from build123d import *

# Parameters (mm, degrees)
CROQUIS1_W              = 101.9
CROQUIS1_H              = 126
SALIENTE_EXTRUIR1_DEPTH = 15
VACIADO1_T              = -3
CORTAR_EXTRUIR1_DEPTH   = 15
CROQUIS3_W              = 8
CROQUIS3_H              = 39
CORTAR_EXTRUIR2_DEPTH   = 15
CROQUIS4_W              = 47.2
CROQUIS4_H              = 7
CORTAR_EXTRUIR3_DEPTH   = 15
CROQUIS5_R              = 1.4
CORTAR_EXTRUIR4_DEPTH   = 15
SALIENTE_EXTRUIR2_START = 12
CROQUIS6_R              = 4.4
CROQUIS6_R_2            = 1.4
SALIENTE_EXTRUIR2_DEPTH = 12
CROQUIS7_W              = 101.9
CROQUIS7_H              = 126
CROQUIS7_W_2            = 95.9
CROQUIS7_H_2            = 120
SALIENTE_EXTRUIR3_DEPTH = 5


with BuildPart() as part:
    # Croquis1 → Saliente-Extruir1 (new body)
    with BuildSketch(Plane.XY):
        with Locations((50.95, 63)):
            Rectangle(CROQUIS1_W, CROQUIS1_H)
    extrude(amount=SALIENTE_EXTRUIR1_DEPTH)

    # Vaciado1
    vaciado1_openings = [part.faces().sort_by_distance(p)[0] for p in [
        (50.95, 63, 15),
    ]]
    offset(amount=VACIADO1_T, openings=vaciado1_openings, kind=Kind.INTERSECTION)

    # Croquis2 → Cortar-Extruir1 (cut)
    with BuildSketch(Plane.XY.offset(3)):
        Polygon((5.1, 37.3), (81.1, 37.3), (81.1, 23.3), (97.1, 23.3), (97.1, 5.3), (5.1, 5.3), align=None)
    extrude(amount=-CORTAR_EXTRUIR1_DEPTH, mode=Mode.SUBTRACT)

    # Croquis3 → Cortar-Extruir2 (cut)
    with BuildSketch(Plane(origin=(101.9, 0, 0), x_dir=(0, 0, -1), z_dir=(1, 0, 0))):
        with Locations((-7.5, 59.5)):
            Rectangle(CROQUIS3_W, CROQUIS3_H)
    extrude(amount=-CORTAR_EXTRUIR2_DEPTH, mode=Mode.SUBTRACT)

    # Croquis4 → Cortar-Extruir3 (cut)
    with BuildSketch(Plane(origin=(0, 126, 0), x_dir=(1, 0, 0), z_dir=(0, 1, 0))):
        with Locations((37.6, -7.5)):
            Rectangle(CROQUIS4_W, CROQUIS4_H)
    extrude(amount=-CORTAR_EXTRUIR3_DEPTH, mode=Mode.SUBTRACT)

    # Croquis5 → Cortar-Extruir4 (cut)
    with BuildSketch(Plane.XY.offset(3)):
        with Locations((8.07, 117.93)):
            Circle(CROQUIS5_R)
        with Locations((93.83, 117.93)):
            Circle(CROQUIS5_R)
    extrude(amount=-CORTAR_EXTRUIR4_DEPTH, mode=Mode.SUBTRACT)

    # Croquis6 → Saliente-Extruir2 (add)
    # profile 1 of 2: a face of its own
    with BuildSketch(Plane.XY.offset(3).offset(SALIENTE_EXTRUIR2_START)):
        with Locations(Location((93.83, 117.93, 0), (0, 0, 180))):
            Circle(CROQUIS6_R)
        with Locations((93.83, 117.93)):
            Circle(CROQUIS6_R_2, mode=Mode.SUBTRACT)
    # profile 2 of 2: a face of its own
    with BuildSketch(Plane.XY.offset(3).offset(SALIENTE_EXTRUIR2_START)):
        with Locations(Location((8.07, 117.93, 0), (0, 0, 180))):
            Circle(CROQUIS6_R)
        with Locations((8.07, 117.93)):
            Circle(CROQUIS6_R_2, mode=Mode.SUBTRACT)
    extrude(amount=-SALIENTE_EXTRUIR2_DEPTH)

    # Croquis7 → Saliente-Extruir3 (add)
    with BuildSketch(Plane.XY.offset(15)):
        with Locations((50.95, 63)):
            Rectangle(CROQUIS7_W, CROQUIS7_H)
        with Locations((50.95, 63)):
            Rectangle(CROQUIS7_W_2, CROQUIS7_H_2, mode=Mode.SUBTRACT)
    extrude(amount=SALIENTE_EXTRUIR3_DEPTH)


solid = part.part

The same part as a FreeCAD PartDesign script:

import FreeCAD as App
import Part
import Sketcher
from FreeCAD import Vector
Q = App.Units.Quantity


def faces_at(feature, points):
    """Names of the faces that lie closest to the given points."""
    faces = feature.Shape.Faces
    near = lambda p: min(range(len(faces)), key=lambda i: faces[i].distToShape(Part.Vertex(*p))[0])
    return sorted({f"Face{near(p) + 1}" for p in points})


def add_polygon(sketch, points):
    """Adds a closed chain of lines whose ends are joined by coincident constraints."""
    first, n = sketch.GeometryCount, len(points)
    for a, b in zip(points, points[1:] + points[:1]):
        sketch.addGeometry(Part.LineSegment(App.Vector(*a, 0), App.Vector(*b, 0)), False)
    for i in range(n):
        sketch.addConstraint(Sketcher.Constraint("Coincident", first + i, 2, first + (i + 1) % n, 1))

doc = App.newDocument("Part")
body = doc.addObject("PartDesign::Body", "Body")

# Sketch on XY plane
sketch1 = body.newObject("Sketcher::SketchObject", "Sketch")
sketch1.AttachmentSupport = (doc.getObject("XY_Plane"), [""])
sketch1.MapMode = "FlatFace"
add_polygon(sketch1, [(0, 126), (0, 0), (102, 0), (102, 126)])  # lines 0-3
sketch1.addConstraint(Sketcher.Constraint("Vertical", 0))
sketch1.addConstraint(Sketcher.Constraint("Horizontal", 1))
sketch1.addConstraint(Sketcher.Constraint("Vertical", 2))
sketch1.addConstraint(Sketcher.Constraint("Horizontal", 3))
sketch1.addConstraint(Sketcher.Constraint("Coincident", 0, 2, -1, 1))
sketch1.addConstraint(Sketcher.Constraint("DistanceY", 0, 2, 0, 1, Q("126 mm")))
sketch1.addConstraint(Sketcher.Constraint("DistanceX", 1, 1, 1, 2, Q("101.9 mm")))
pad1 = body.newObject("PartDesign::Pad", "Pad")
pad1.Profile = sketch1
pad1.Length = 15
doc.recompute()

thickness = body.newObject("PartDesign::Thickness", "Thickness")
thickness.Base = (pad1, faces_at(pad1, [(50.95, 63, 15)]))
thickness.Value = 3
thickness.Reversed = True
thickness.Join = "Intersection"

# Sketch on XY plane
sketch2 = body.newObject("Sketcher::SketchObject", "Sketch001")
sketch2.AttachmentSupport = (doc.getObject("XY_Plane"), [""])
sketch2.MapMode = "FlatFace"
sketch2.AttachmentOffset = App.Placement(Vector(0, 0, 3), App.Rotation())
add_polygon(sketch2, [(81, 37), (5, 37), (5, 5), (97, 5), (97, 23), (81, 23)])  # lines 0-5
sketch2.addConstraint(Sketcher.Constraint("Horizontal", 0))
sketch2.addConstraint(Sketcher.Constraint("Vertical", 1))
sketch2.addConstraint(Sketcher.Constraint("Horizontal", 2))
sketch2.addConstraint(Sketcher.Constraint("Vertical", 3))
sketch2.addConstraint(Sketcher.Constraint("Horizontal", 4))
sketch2.addConstraint(Sketcher.Constraint("Vertical", 5))
sketch2.addConstraint(Sketcher.Constraint("DistanceX", 0, 2, 0, 1, Q("76 mm")))
sketch2.addConstraint(Sketcher.Constraint("DistanceX", 2, 1, 2, 2, Q("92 mm")))
sketch2.addConstraint(Sketcher.Constraint("DistanceY", 1, 2, 1, 1, Q("32 mm")))
sketch2.addConstraint(Sketcher.Constraint("DistanceY", 3, 1, 3, 2, Q("18 mm")))
sketch2.addConstraint(Sketcher.Constraint("DistanceX", -1, 1, 0, 2, Q("5.1 mm")))
sketch2.addConstraint(Sketcher.Constraint("DistanceY", -1, 1, 0, 2, Q("37.3 mm")))
pocket1 = body.newObject("PartDesign::Pocket", "Pocket")
pocket1.Profile = sketch2
pocket1.Length = 15

# Sketch on YZ plane
sketch3 = body.newObject("Sketcher::SketchObject", "Sketch002")
sketch3.AttachmentSupport = (doc.getObject("YZ_Plane"), [""])
sketch3.MapMode = "FlatFace"
sketch3.AttachmentOffset = App.Placement(Vector(0, 0, 101.9), App.Rotation())
add_polygon(sketch3, [(79, 12), (40, 12), (40, 4), (79, 4)])  # lines 0-3
sketch3.addConstraint(Sketcher.Constraint("Horizontal", 0))
sketch3.addConstraint(Sketcher.Constraint("Vertical", 1))
sketch3.addConstraint(Sketcher.Constraint("Horizontal", 2))
sketch3.addConstraint(Sketcher.Constraint("Vertical", 3))
sketch3.addConstraint(Sketcher.Constraint("DistanceX", 0, 2, 0, 1, Q("39 mm")))
sketch3.addConstraint(Sketcher.Constraint("DistanceY", 1, 2, 1, 1, Q("8 mm")))
sketch3.addConstraint(Sketcher.Constraint("DistanceX", -1, 1, 0, 2, Q("40 mm")))
sketch3.addConstraint(Sketcher.Constraint("DistanceY", -1, 1, 0, 2, Q("11.5 mm")))
pocket2 = body.newObject("PartDesign::Pocket", "Pocket001")
pocket2.Profile = sketch3
pocket2.Length = 15

# Sketch on XZ plane
sketch4 = body.newObject("Sketcher::SketchObject", "Sketch003")
sketch4.AttachmentSupport = (doc.getObject("XZ_Plane"), [""])
sketch4.MapMode = "FlatFace"
sketch4.AttachmentOffset = App.Placement(Vector(0, 0, -126), App.Rotation())
add_polygon(sketch4, [(14, 4), (14, 11), (61, 11), (61, 4)])  # lines 0-3
sketch4.addConstraint(Sketcher.Constraint("Vertical", 0))
sketch4.addConstraint(Sketcher.Constraint("Horizontal", 1))
sketch4.addConstraint(Sketcher.Constraint("Vertical", 2))
sketch4.addConstraint(Sketcher.Constraint("Horizontal", 3))
sketch4.addConstraint(Sketcher.Constraint("DistanceY", 0, 1, 0, 2, Q("7 mm")))
sketch4.addConstraint(Sketcher.Constraint("DistanceX", 1, 1, 1, 2, Q("47.2 mm")))
sketch4.addConstraint(Sketcher.Constraint("DistanceX", -1, 1, 0, 2, Q("14 mm")))
sketch4.addConstraint(Sketcher.Constraint("DistanceY", -1, 1, 0, 2, Q("11 mm")))
pocket3 = body.newObject("PartDesign::Pocket", "Pocket002")
pocket3.Profile = sketch4
pocket3.Length = 15
pocket3.Reversed = True

# Sketch on XY plane
sketch5 = body.newObject("Sketcher::SketchObject", "Sketch004")
sketch5.AttachmentSupport = (doc.getObject("XY_Plane"), [""])
sketch5.MapMode = "FlatFace"
sketch5.AttachmentOffset = App.Placement(Vector(0, 0, 3), App.Rotation())
sketch5.addGeometry(Part.Circle(Vector(8.1, 117.9, 0), Vector(0, 0, 1), 1.4), False)
sketch5.addGeometry(Part.Circle(Vector(93.8, 117.9, 0), Vector(0, 0, 1), 1.4), False)
sketch5.addConstraint(Sketcher.Constraint("Equal", 0, 1))
sketch5.addConstraint(Sketcher.Constraint("Horizontal", 0, 3, 1, 3))
sketch5.addConstraint(Sketcher.Constraint("Diameter", 0, Q("2.8 mm")))
sketch5.addConstraint(Sketcher.Constraint("DistanceX", -1, 1, 0, 3, Q("8.07 mm")))
sketch5.addConstraint(Sketcher.Constraint("DistanceY", -1, 1, 0, 3, Q("117.93 mm")))
sketch5.addConstraint(Sketcher.Constraint("DistanceX", -1, 1, 1, 3, Q("93.83 mm")))
pocket4 = body.newObject("PartDesign::Pocket", "Pocket003")
pocket4.Profile = sketch5
pocket4.Length = 15

# Sketch on XY plane
sketch6 = body.newObject("Sketcher::SketchObject", "Sketch005")
sketch6.AttachmentSupport = (doc.getObject("XY_Plane"), [""])
sketch6.MapMode = "FlatFace"
sketch6.AttachmentOffset = App.Placement(Vector(0, 0, 15), App.Rotation())
sketch6.addGeometry(Part.Circle(Vector(93.8, 117.9, 0), Vector(0, 0, 1), 4.4), False)
sketch6.addGeometry(Part.Circle(Vector(93.8, 117.9, 0), Vector(0, 0, 1), 1.4), False)
sketch6.addGeometry(Part.Circle(Vector(8.1, 117.9, 0), Vector(0, 0, 1), 4.4), False)
sketch6.addGeometry(Part.Circle(Vector(8.1, 117.9, 0), Vector(0, 0, 1), 1.4), False)
sketch6.addConstraint(Sketcher.Constraint("Coincident", 1, 3, 0, 3))
sketch6.addConstraint(Sketcher.Constraint("Coincident", 3, 3, 2, 3))
sketch6.addConstraint(Sketcher.Constraint("Equal", 0, 2))
sketch6.addConstraint(Sketcher.Constraint("Equal", 1, 3))
sketch6.addConstraint(Sketcher.Constraint("Horizontal", 1, 3, 2, 3))
sketch6.addConstraint(Sketcher.Constraint("Diameter", 0, Q("8.8 mm")))
sketch6.addConstraint(Sketcher.Constraint("Diameter", 1, Q("2.8 mm")))
sketch6.addConstraint(Sketcher.Constraint("DistanceX", -1, 1, 0, 3, Q("93.83 mm")))
sketch6.addConstraint(Sketcher.Constraint("DistanceY", -1, 1, 0, 3, Q("117.93 mm")))
sketch6.addConstraint(Sketcher.Constraint("DistanceX", -1, 1, 2, 3, Q("8.07 mm")))
pad2 = body.newObject("PartDesign::Pad", "Pad001")
pad2.Profile = sketch6
pad2.Length = 12
pad2.Reversed = True

# Sketch on XY plane
sketch7 = body.newObject("Sketcher::SketchObject", "Sketch006")
sketch7.AttachmentSupport = (doc.getObject("XY_Plane"), [""])
sketch7.MapMode = "FlatFace"
sketch7.AttachmentOffset = App.Placement(Vector(0, 0, 15), App.Rotation())
add_polygon(sketch7, [(0, 126), (0, 0), (102, 0), (102, 126)])  # lines 0-3
add_polygon(sketch7, [(99, 3), (3, 3), (3, 123), (99, 123)])  # lines 4-7
sketch7.addConstraint(Sketcher.Constraint("Vertical", 0))
sketch7.addConstraint(Sketcher.Constraint("Horizontal", 1))
sketch7.addConstraint(Sketcher.Constraint("Vertical", 2))
sketch7.addConstraint(Sketcher.Constraint("Horizontal", 3))
sketch7.addConstraint(Sketcher.Constraint("Horizontal", 4))
sketch7.addConstraint(Sketcher.Constraint("Vertical", 5))
sketch7.addConstraint(Sketcher.Constraint("Horizontal", 6))
sketch7.addConstraint(Sketcher.Constraint("Vertical", 7))
sketch7.addConstraint(Sketcher.Constraint("Coincident", 0, 2, -1, 1))
sketch7.addConstraint(Sketcher.Constraint("DistanceY", 0, 2, 0, 1, Q("126 mm")))
sketch7.addConstraint(Sketcher.Constraint("DistanceY", 5, 1, 5, 2, Q("120 mm")))
sketch7.addConstraint(Sketcher.Constraint("DistanceX", 1, 1, 1, 2, Q("101.9 mm")))
sketch7.addConstraint(Sketcher.Constraint("DistanceX", 4, 2, 4, 1, Q("95.9 mm")))
sketch7.addConstraint(Sketcher.Constraint("DistanceX", -1, 1, 4, 2, Q("3 mm")))
sketch7.addConstraint(Sketcher.Constraint("DistanceY", -1, 1, 4, 2, Q("3 mm")))
pad3 = body.newObject("PartDesign::Pad", "Pad002")
pad3.Profile = sketch7
pad3.Length = 5

doc.recompute()
